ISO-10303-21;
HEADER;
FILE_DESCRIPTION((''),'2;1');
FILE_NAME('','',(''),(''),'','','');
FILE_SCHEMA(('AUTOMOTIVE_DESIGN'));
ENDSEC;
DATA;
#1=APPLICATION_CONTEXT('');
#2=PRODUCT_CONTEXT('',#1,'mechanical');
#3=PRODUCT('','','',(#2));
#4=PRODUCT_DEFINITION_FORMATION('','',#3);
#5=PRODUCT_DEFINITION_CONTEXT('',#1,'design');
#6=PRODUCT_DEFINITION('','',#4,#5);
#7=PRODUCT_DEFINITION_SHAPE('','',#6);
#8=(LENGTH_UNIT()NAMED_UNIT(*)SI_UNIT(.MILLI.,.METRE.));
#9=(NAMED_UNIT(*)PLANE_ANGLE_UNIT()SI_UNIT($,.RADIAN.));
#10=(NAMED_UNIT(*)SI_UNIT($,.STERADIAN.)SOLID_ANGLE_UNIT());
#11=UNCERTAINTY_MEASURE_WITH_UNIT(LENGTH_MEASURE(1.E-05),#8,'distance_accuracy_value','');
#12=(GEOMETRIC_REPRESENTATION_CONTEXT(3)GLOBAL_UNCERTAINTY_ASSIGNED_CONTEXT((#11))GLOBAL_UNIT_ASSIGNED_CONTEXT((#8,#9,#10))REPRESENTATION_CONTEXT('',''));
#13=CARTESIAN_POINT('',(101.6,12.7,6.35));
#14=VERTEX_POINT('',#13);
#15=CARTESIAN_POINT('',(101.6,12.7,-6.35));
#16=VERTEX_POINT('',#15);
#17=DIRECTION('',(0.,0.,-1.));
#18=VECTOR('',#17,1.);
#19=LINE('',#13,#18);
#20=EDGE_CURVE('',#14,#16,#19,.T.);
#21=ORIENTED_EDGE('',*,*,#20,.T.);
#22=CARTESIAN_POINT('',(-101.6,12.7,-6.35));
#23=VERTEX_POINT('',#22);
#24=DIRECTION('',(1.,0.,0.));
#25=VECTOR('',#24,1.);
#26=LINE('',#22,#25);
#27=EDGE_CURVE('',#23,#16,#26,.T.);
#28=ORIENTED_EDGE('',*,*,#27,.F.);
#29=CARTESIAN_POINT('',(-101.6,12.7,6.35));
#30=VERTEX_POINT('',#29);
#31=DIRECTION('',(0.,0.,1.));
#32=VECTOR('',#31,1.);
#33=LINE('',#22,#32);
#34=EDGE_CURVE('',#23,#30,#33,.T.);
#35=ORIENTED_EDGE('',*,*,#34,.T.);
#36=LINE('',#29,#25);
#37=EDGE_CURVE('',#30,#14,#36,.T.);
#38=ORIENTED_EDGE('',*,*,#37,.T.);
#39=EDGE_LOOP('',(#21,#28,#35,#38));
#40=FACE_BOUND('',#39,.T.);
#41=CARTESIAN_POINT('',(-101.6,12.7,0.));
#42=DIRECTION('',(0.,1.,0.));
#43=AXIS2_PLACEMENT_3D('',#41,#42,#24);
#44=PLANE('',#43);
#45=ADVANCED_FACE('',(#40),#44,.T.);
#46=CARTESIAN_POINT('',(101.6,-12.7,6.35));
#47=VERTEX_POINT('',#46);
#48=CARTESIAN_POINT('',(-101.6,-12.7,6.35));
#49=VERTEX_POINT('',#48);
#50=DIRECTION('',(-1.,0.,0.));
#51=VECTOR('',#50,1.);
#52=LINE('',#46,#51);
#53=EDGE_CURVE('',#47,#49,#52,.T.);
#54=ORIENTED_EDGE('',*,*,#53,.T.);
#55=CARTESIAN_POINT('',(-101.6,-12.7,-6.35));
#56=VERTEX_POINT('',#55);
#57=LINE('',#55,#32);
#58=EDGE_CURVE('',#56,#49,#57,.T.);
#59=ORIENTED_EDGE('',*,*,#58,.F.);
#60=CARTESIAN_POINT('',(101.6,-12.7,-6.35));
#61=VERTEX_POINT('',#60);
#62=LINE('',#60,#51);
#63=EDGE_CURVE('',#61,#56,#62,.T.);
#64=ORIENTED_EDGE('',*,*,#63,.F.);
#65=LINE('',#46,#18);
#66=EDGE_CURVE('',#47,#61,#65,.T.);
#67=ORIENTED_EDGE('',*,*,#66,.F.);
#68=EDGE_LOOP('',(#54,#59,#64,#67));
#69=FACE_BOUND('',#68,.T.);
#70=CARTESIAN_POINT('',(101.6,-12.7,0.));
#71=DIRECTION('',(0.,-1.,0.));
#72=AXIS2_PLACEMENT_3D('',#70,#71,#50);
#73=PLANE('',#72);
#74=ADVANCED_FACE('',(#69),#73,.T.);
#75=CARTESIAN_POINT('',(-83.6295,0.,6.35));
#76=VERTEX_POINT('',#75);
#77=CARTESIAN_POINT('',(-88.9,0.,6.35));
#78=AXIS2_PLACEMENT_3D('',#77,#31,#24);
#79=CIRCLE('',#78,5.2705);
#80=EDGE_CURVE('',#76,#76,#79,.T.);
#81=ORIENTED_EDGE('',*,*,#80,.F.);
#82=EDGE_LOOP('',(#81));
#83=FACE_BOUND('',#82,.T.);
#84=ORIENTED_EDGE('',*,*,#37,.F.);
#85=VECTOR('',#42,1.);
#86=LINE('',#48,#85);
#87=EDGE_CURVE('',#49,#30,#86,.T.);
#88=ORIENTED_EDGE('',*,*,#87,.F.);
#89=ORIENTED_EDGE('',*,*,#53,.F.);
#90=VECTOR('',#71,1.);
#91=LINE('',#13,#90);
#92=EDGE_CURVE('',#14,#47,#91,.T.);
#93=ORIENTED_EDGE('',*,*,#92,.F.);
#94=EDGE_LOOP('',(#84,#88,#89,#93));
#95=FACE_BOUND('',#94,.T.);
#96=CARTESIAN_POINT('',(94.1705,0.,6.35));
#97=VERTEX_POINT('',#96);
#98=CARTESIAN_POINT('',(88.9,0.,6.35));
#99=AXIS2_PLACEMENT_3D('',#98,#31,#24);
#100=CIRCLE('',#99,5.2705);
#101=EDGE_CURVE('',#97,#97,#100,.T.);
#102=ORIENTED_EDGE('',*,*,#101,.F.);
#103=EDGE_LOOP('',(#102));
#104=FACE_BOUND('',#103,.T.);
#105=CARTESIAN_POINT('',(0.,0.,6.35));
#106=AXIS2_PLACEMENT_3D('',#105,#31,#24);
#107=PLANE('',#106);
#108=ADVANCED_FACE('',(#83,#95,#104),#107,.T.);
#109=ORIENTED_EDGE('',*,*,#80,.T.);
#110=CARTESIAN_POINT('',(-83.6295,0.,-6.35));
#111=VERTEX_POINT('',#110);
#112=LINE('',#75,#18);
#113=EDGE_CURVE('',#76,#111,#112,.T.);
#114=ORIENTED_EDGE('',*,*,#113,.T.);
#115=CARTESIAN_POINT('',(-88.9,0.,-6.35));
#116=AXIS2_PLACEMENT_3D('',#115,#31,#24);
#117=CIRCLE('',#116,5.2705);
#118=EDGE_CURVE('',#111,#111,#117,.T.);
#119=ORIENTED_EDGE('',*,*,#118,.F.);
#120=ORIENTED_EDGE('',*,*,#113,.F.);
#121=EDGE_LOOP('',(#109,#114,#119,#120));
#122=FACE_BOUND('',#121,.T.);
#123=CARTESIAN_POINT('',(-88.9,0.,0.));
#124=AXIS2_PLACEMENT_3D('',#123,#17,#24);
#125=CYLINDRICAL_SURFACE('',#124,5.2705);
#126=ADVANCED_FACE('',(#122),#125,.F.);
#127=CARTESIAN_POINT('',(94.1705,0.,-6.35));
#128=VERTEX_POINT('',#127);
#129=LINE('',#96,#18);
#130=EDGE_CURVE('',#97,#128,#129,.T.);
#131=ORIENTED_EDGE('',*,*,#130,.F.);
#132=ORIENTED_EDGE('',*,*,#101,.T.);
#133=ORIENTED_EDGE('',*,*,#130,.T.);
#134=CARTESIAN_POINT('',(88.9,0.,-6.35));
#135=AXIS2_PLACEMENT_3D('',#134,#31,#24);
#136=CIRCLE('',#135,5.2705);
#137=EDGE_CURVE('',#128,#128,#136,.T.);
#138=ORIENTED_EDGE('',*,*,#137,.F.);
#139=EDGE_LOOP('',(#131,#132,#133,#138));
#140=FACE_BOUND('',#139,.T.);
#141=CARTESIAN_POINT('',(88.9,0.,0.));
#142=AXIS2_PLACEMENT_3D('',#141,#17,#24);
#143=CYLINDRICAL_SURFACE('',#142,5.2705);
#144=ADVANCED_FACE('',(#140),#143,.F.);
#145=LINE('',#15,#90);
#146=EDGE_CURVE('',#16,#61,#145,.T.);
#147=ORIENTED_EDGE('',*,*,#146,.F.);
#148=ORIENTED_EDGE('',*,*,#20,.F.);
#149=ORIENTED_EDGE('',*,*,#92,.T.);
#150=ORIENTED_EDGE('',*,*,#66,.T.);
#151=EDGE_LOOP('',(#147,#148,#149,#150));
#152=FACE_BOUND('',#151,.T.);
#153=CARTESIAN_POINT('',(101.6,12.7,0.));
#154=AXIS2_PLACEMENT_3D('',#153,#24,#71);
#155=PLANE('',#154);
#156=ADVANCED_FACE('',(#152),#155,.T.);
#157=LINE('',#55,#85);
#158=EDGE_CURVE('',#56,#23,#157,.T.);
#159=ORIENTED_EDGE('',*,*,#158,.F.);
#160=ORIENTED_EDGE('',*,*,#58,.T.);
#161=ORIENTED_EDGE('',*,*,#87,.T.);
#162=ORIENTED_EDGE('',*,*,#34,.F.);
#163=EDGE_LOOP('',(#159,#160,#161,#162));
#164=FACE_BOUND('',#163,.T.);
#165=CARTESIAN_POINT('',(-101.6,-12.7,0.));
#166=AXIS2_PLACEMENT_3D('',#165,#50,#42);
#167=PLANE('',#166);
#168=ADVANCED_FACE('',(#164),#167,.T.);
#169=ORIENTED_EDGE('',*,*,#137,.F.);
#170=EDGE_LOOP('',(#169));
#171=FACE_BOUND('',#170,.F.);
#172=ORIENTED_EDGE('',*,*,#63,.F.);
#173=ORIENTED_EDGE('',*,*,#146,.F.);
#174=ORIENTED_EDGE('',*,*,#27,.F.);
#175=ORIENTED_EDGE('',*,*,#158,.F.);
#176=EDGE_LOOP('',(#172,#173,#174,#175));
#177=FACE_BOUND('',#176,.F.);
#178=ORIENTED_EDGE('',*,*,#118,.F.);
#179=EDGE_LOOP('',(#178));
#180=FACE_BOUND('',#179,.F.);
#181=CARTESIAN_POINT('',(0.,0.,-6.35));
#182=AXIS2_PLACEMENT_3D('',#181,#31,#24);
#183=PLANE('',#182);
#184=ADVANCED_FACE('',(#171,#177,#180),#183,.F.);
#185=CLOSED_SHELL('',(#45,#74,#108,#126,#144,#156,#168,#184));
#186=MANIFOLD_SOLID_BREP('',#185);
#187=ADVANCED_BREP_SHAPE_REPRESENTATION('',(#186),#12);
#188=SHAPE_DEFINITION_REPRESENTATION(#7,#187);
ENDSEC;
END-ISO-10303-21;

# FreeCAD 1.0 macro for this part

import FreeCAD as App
import Part
import Sketcher

V = App.Vector
Q = App.Units.Quantity


def add_polygon(sketch, points):
    """Adds a closed chain of lines whose ends are joined by coincident constraints."""
    first, n = sketch.GeometryCount, len(points)
    for a, b in zip(points, points[1:] + points[:1]):
        sketch.addGeometry(Part.LineSegment(App.Vector(*a, 0), App.Vector(*b, 0)), False)
    for i in range(n):
        sketch.addConstraint(Sketcher.Constraint("Coincident", first + i, 2, first + (i + 1) % n, 1))

doc = App.newDocument("Part")
params = doc.addObject("Spreadsheet::Sheet", "Params")
for row, (alias, value) in enumerate([
    ("sketch1_width", "8 in"),
    ("sketch1_height", "1 in"),
    ("sketch1_diameter", "0.415 in"),
    ("pad1_length", "0.5 in"),
], start=1):
    params.set(f"A{row}", alias)
    params.set(f"B{row}", "=" + value)
    params.setAlias(f"B{row}", alias)

body = doc.addObject("PartDesign::Body", "Body")

sketch1 = doc.addObject("Sketcher::SketchObject", "Sketch")
body.addObject(sketch1)
sketch1.AttachmentSupport = (doc.XY_Plane, [""])
sketch1.MapMode = "FlatFace"
add_polygon(sketch1, [(102, 13), (-102, 13), (-102, -13), (102, -13)])
sketch1.addGeometry(Part.Circle(V(-89, 0, 0), V(0, 0, 1), 5), False)
sketch1.addGeometry(Part.Circle(V(89, 0, 0), V(0, 0, 1), 5), False)
sketch1.addConstraint(Sketcher.Constraint("Horizontal", 0))
sketch1.addConstraint(Sketcher.Constraint("Vertical", 1))
sketch1.addConstraint(Sketcher.Constraint("Horizontal", 2))
sketch1.addConstraint(Sketcher.Constraint("Vertical", 3))
sketch1.addConstraint(Sketcher.Constraint("Equal", 4, 5))
sketch1.addConstraint(Sketcher.Constraint("Symmetric", 4, 3, 5, 3, -1, 1))
sketch1.addConstraint(Sketcher.Constraint("Symmetric", 0, 2, 2, 2, -1, 1))
sketch1.addConstraint(Sketcher.Constraint("PointOnObject", 4, 3, -1))
sketch1.addConstraint(Sketcher.Constraint("DistanceX", 0, 2, 0, 1, Q("8 in")))
sketch1.addConstraint(Sketcher.Constraint("DistanceY", 1, 2, 1, 1, Q("1 in")))
sketch1.addConstraint(Sketcher.Constraint("Diameter", 4, Q("0.415 in")))
sketch1.addConstraint(Sketcher.Constraint("DistanceX", 0, 2, 4, 3, Q("0.5 in")))
sketch1.setExpression("Constraints[12]", "Params.sketch1_width")
sketch1.setExpression("Constraints[13]", "Params.sketch1_height")
sketch1.setExpression("Constraints[14]", "Params.sketch1_diameter")
pad1 = doc.addObject("PartDesign::Pad", "Pad")
body.addObject(pad1)
pad1.Profile = sketch1
pad1.setExpression("Length", "Params.pad1_length")
pad1.Midplane = True

doc.recompute()
